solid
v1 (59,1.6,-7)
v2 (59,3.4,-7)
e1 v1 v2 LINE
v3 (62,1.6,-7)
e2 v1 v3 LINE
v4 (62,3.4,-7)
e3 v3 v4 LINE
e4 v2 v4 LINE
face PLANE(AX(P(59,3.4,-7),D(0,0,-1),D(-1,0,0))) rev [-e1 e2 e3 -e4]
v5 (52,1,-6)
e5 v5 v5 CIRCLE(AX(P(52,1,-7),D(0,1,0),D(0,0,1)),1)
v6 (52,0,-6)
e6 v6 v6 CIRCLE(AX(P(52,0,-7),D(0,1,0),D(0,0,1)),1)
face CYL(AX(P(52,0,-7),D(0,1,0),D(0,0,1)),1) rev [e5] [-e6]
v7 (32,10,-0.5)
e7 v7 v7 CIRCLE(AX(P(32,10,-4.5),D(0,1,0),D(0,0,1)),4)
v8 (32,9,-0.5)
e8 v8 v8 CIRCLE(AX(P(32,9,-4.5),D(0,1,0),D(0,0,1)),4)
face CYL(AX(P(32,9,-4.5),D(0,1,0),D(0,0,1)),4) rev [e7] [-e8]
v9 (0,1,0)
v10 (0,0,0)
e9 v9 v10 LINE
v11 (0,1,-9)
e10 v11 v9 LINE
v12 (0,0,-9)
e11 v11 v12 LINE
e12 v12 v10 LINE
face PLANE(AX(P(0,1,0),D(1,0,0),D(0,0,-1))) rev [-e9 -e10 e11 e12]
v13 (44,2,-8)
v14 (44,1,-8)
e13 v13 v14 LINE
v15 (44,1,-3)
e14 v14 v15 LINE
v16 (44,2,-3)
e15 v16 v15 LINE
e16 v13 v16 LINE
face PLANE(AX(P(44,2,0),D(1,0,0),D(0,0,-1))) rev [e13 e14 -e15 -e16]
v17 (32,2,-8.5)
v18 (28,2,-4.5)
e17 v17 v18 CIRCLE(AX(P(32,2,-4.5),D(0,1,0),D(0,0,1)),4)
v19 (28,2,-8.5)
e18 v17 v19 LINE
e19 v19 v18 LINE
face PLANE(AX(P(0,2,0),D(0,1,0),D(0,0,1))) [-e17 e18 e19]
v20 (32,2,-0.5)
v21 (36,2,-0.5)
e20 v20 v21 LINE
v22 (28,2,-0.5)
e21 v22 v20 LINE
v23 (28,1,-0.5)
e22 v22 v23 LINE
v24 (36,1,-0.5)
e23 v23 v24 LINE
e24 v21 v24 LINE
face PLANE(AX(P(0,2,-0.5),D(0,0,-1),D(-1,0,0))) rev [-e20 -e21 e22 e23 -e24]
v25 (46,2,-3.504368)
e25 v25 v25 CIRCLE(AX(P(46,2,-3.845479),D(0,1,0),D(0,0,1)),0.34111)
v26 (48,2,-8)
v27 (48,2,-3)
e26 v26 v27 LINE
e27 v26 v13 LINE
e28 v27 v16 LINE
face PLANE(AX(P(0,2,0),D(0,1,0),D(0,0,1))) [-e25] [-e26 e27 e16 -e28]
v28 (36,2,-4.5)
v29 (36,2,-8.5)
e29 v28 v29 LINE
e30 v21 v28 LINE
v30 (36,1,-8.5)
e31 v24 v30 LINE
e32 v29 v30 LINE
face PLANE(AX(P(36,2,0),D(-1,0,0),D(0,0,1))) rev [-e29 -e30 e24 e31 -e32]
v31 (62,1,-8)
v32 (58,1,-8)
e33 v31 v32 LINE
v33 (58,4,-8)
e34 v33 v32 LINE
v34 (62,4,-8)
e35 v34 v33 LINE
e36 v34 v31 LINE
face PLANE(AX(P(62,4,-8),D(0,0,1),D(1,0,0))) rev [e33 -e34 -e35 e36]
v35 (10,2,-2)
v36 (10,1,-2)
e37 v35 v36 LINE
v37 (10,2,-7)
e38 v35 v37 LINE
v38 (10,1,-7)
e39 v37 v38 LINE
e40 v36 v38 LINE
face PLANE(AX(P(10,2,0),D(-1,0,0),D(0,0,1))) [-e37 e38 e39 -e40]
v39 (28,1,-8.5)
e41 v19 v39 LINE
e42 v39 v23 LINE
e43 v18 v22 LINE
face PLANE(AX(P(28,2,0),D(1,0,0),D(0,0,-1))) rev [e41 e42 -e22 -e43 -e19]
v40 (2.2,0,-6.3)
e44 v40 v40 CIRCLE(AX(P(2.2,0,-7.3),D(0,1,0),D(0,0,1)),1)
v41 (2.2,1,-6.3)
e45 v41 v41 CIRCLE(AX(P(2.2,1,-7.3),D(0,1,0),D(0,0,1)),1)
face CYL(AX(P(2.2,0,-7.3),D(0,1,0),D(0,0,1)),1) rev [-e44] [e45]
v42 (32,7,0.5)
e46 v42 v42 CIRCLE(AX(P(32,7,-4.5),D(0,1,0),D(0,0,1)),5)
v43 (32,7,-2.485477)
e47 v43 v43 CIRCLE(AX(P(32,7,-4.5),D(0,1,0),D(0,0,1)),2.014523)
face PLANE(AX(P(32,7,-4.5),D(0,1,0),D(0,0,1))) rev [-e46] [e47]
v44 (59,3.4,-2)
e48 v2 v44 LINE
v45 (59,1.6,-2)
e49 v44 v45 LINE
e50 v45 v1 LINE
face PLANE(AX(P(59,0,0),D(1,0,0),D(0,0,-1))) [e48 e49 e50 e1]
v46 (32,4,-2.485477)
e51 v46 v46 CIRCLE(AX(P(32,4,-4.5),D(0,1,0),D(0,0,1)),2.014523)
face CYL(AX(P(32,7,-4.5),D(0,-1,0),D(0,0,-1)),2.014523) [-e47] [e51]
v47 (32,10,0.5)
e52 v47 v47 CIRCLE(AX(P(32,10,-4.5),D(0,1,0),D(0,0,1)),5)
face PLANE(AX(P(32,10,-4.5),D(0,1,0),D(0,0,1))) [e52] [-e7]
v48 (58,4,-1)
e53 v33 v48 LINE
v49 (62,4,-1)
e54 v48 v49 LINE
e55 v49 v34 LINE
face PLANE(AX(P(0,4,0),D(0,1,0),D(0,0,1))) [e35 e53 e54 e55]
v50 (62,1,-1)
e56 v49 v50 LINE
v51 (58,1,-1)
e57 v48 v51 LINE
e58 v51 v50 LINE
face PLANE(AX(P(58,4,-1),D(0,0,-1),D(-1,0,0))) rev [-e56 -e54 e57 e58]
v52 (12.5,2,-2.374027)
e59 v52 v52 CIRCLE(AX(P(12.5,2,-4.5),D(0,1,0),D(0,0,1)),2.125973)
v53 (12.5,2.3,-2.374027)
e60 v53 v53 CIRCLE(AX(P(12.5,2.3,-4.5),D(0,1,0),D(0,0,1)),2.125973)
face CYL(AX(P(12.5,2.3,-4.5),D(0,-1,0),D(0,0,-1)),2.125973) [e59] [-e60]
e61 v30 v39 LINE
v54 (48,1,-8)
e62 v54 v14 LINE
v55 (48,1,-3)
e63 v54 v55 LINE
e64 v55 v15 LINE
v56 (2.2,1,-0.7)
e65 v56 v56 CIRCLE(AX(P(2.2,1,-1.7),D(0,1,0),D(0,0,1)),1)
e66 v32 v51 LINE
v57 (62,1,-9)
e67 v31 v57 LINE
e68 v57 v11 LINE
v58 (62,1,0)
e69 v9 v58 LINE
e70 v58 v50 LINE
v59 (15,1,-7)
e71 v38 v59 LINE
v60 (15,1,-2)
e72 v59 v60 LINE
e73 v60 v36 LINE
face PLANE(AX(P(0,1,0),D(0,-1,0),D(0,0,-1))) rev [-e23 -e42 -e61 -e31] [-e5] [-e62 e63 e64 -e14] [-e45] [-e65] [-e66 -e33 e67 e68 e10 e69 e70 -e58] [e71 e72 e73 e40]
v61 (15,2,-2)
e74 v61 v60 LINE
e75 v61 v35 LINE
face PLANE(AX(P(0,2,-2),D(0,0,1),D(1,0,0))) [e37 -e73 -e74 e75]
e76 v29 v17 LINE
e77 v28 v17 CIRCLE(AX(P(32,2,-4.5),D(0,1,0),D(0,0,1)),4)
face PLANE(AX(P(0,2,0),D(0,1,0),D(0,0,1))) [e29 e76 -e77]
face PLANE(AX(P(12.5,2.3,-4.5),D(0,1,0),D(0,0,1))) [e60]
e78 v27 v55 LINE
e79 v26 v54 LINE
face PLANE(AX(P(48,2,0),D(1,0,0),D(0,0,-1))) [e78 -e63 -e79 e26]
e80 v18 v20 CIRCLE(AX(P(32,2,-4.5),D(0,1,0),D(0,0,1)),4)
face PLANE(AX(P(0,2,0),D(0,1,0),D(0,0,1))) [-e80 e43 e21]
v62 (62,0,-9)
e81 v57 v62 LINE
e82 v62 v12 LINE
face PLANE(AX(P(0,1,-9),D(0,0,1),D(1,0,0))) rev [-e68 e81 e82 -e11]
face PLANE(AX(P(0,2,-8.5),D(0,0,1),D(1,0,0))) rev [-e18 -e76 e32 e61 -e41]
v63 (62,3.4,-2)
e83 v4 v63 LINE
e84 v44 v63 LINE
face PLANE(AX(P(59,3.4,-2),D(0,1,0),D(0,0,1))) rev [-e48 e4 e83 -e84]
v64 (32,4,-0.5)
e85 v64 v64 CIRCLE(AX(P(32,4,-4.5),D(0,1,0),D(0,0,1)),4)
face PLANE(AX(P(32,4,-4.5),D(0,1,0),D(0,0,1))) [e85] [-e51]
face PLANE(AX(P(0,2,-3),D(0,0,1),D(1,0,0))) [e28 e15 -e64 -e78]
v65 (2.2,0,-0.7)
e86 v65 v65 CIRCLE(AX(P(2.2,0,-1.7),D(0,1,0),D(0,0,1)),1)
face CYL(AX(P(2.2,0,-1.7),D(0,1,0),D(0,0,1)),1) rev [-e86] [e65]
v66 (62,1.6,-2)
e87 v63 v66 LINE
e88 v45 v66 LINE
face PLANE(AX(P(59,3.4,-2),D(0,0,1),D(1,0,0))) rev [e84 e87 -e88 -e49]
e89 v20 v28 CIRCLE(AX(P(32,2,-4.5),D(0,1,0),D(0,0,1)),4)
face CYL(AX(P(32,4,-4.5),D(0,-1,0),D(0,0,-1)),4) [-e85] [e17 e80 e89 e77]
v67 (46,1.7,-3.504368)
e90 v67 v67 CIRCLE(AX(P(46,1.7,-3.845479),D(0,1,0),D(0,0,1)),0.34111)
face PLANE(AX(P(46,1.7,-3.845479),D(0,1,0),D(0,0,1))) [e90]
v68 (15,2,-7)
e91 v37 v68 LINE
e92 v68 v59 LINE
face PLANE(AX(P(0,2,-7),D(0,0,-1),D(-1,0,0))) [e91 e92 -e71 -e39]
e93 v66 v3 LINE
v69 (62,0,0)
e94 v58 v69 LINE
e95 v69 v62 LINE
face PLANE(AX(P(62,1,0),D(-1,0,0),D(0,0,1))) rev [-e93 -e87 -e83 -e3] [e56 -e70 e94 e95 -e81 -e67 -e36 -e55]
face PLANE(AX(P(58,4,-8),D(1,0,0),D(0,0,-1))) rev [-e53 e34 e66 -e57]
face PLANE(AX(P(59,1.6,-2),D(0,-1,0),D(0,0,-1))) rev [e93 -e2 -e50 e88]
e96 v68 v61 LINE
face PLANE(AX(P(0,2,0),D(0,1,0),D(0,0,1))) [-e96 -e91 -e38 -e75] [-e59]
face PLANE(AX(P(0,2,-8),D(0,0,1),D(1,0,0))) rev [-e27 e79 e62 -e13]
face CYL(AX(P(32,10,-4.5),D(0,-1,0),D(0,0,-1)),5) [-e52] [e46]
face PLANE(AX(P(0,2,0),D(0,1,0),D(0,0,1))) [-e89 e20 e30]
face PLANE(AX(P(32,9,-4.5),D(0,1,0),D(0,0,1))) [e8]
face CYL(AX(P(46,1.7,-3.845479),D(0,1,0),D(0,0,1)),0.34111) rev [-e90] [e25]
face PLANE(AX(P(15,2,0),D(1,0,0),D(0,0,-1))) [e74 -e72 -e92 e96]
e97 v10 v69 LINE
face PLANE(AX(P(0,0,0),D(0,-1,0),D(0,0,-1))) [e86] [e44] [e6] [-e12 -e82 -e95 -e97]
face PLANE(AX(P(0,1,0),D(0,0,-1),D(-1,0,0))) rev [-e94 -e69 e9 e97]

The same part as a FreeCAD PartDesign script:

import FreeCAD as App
import Part
import Sketcher
Q = App.Units.Quantity


def add_polygon(sketch, points):
    """Adds a closed chain of lines whose ends are joined by coincident constraints."""
    first, n = sketch.GeometryCount, len(points)
    for a, b in zip(points, points[1:] + points[:1]):
        sketch.addGeometry(Part.LineSegment(App.Vector(*a, 0), App.Vector(*b, 0)), False)
    for i in range(n):
        sketch.addConstraint(Sketcher.Constraint("Coincident", first + i, 2, first + (i + 1) % n, 1))

doc = App.newDocument("Part")
body = doc.addObject("PartDesign::Body", "Body")

sketch1 = body.newObject("Sketcher::SketchObject", "Sketch")
sketch1.AttachmentSupport = (doc.getObject("XZ_Plane"), [""])
sketch1.MapMode = "FlatFace"
add_polygon(sketch1, [(0, -9), (0, 0), (62, 0), (62, -9)])
sketch1.addConstraint([
    Sketcher.Constraint("Vertical", 0),
    Sketcher.Constraint("Horizontal", 1),
    Sketcher.Constraint("Vertical", 2),
    Sketcher.Constraint("Horizontal", 3),
    Sketcher.Constraint("Coincident", 0, 2, -1, 1),
    Sketcher.Constraint("DistanceX", 1, 1, 1, 2, Q("62 mm")),
    Sketcher.Constraint("DistanceY", 0, 1, 0, 2, Q("9 mm")),
])
pad1 = body.newObject("PartDesign::Pad", "Pad")
pad1.Profile = sketch1
pad1.Length = 1
pad1.Reversed = True

sketch2 = body.newObject("Sketcher::SketchObject", "Sketch001")
sketch2.AttachmentSupport = (doc.getObject("XZ_Plane"), [""])
sketch2.MapMode = "FlatFace"
sketch2.AttachmentOffset = App.Placement(App.Vector(0, 0, -1), App.Rotation())
add_polygon(sketch2, [(62, -8), (58, -8), (58, -1), (62, -1)])
sketch2.addConstraint([
    Sketcher.Constraint("Horizontal", 0),
    Sketcher.Constraint("Vertical", 1),
    Sketcher.Constraint("Horizontal", 2),
    Sketcher.Constraint("Vertical", 3),
    Sketcher.Constraint("DistanceX", 0, 2, 0, 1, Q("4 mm")),
    Sketcher.Constraint("DistanceY", 1, 1, 1, 2, Q("7 mm")),
    Sketcher.Constraint("DistanceX", -1, 1, 0, 2, Q("58 mm")),
    Sketcher.Constraint("DistanceY", 0, 2, -1, 1, Q("8 mm")),
])
pad2 = body.newObject("PartDesign::Pad", "Pad001")
pad2.Profile = sketch2
pad2.Length = 3
pad2.Reversed = True

sketch3 = body.newObject("Sketcher::SketchObject", "Sketch002")
sketch3.AttachmentSupport = (doc.getObject("YZ_Plane"), [""])
sketch3.MapMode = "FlatFace"
sketch3.AttachmentOffset = App.Placement(App.Vector(0, 0, 62), App.Rotation())
add_polygon(sketch3, [(3.4, -2), (1.6, -2), (1.6, -7), (3.4, -7)])
sketch3.addConstraint([
    Sketcher.Constraint("Horizontal", 0),
    Sketcher.Constraint("Vertical", 1),
    Sketcher.Constraint("Horizontal", 2),
    Sketcher.Constraint("Vertical", 3),
    Sketcher.Constraint("DistanceY", 1, 2, 1, 1, Q("5 mm")),
    Sketcher.Constraint("DistanceX", 0, 2, 0, 1, Q("1.8 mm")),
    Sketcher.Constraint("DistanceY", 0, 2, -1, 1, Q("2 mm")),
    Sketcher.Constraint("DistanceX", -1, 1, 0, 2, Q("1.6 mm")),
])
pocket1 = body.newObject("PartDesign::Pocket", "Pocket")
pocket1.Profile = sketch3
pocket1.Length = 3

sketch4 = body.newObject("Sketcher::SketchObject", "Sketch003")
sketch4.AttachmentSupport = (doc.getObject("XZ_Plane"), [""])
sketch4.MapMode = "FlatFace"
sketch4.AttachmentOffset = App.Placement(App.Vector(0, 0, -1), App.Rotation())
sketch4.addGeometry([
    Part.Circle(App.Vector(2.2, -7.3, 0), App.Vector(0, 0, 1), 1),
    Part.Circle(App.Vector(2.2, -1.7, 0), App.Vector(0, 0, 1), 1),
    Part.Circle(App.Vector(52, -7, 0), App.Vector(0, 0, 1), 1),
], False)
sketch4.addConstraint([
    Sketcher.Constraint("Equal", 0, 1),
    Sketcher.Constraint("Equal", 1, 2),
    Sketcher.Constraint("Vertical", 0, 3, 1, 3),
    Sketcher.Constraint("Diameter", 0, Q("2 mm")),
    Sketcher.Constraint("DistanceX", -1, 1, 2, 3, Q("52 mm")),
    Sketcher.Constraint("DistanceY", 2, 3, -1, 1, Q("7 mm")),
    Sketcher.Constraint("DistanceX", -1, 1, 0, 3, Q("2.2 mm")),
    Sketcher.Constraint("DistanceY", 0, 3, -1, 1, Q("7.3 mm")),
    Sketcher.Constraint("DistanceY", 1, 3, -1, 1, Q("1.7 mm")),
])
pocket2 = body.newObject("PartDesign::Pocket", "Pocket001")
pocket2.Profile = sketch4
pocket2.Type = "ThroughAll"
pocket2.Reversed = True

sketch5 = body.newObject("Sketcher::SketchObject", "Sketch004")
sketch5.AttachmentSupport = (doc.getObject("XZ_Plane"), [""])
sketch5.MapMode = "FlatFace"
sketch5.AttachmentOffset = App.Placement(App.Vector(0, 0, -1), App.Rotation())
add_polygon(sketch5, [(44, -8), (44, -3), (48, -3), (48, -8)])
sketch5.addConstraint([
    Sketcher.Constraint("Vertical", 0),
    Sketcher.Constraint("Horizontal", 1),
    Sketcher.Constraint("Vertical", 2),
    Sketcher.Constraint("Horizontal", 3),
    Sketcher.Constraint("DistanceX", 1, 1, 1, 2, Q("4 mm")),
    Sketcher.Constraint("DistanceY", 0, 1, 0, 2, Q("5 mm")),
    Sketcher.Constraint("DistanceX", -1, 1, 0, 2, Q("44 mm")),
    Sketcher.Constraint("DistanceY", 0, 2, -1, 1, Q("3 mm")),
])
pad3 = body.newObject("PartDesign::Pad", "Pad002")
pad3.Profile = sketch5
pad3.Length = 1
pad3.Reversed = True

sketch6 = body.newObject("Sketcher::SketchObject", "Sketch005")
sketch6.AttachmentSupport = (doc.getObject("XZ_Plane"), [""])
sketch6.MapMode = "FlatFace"
sketch6.AttachmentOffset = App.Placement(App.Vector(0, 0, -1), App.Rotation())
add_polygon(sketch6, [(10, -7), (10, -2), (15, -2), (15, -7)])
sketch6.addConstraint([
    Sketcher.Constraint("Vertical", 0),
    Sketcher.Constraint("Horizontal", 1),
    Sketcher.Constraint("Vertical", 2),
    Sketcher.Constraint("Horizontal", 3),
    Sketcher.Constraint("Equal", 3, 0),
    Sketcher.Constraint("DistanceX", 1, 1, 1, 2, Q("5 mm")),
    Sketcher.Constraint("DistanceX", -1, 1, 0, 2, Q("10 mm")),
    Sketcher.Constraint("DistanceY", 0, 2, -1, 1, Q("2 mm")),
])
pad4 = body.newObject("PartDesign::Pad", "Pad003")
pad4.Profile = sketch6
pad4.Length = 1
pad4.Reversed = True

sketch7 = body.newObject("Sketcher::SketchObject", "Sketch006")
sketch7.AttachmentSupport = (doc.getObject("XZ_Plane"), [""])
sketch7.MapMode = "FlatFace"
sketch7.AttachmentOffset = App.Placement(App.Vector(0, 0, -2), App.Rotation())
sketch7.addGeometry(Part.Circle(App.Vector(12.5, -4.5, 0), App.Vector(0, 0, 1), 2.1), False)
sketch7.addConstraint([
    Sketcher.Constraint("DistanceX", -1, 1, 0, 3, Q("12.5 mm")),
    Sketcher.Constraint("DistanceY", 0, 3, -1, 1, Q("4.5 mm")),
    Sketcher.Constraint("Diameter", 0, Q("4.251947 mm")),
])
pad5 = body.newObject("PartDesign::Pad", "Pad004")
pad5.Profile = sketch7
pad5.Length = 0.3
pad5.Reversed = True

sketch8 = body.newObject("Sketcher::SketchObject", "Sketch007")
sketch8.AttachmentSupport = (doc.getObject("XZ_Plane"), [""])
sketch8.MapMode = "FlatFace"
sketch8.AttachmentOffset = App.Placement(App.Vector(0, 0, -1), App.Rotation())
add_polygon(sketch8, [(36, -8), (28, -8), (28, 0), (36, 0)])
sketch8.addConstraint([
    Sketcher.Constraint("Horizontal", 0),
    Sketcher.Constraint("Vertical", 1),
    Sketcher.Constraint("Horizontal", 2),
    Sketcher.Constraint("Vertical", 3),
    Sketcher.Constraint("Equal", 2, 1),
    Sketcher.Constraint("DistanceX", 0, 2, 0, 1, Q("8 mm")),
    Sketcher.Constraint("DistanceX", -1, 1, 0, 2, Q("28 mm")),
    Sketcher.Constraint("DistanceY", 0, 2, -1, 1, Q("8.5 mm")),
])
pad6 = body.newObject("PartDesign::Pad", "Pad005")
pad6.Profile = sketch8
pad6.Length = 1
pad6.Reversed = True

sketch9 = body.newObject("Sketcher::SketchObject", "Sketch008")
sketch9.AttachmentSupport = (doc.getObject("XZ_Plane"), [""])
sketch9.MapMode = "FlatFace"
sketch9.AttachmentOffset = App.Placement(App.Vector(0, 0, -2), App.Rotation())
sketch9.addGeometry(Part.Circle(App.Vector(32, -4.5, 0), App.Vector(0, 0, 1), 4), False)
sketch9.addConstraint([
    Sketcher.Constraint("Diameter", 0, Q("8 mm")),
    Sketcher.Constraint("DistanceX", -1, 1, 0, 3, Q("32 mm")),
    Sketcher.Constraint("DistanceY", 0, 3, -1, 1, Q("4.5 mm")),
])
pad7 = body.newObject("PartDesign::Pad", "Pad006")
pad7.Profile = sketch9
pad7.Length = 2
pad7.Reversed = True

sketch10 = body.newObject("Sketcher::SketchObject", "Sketch009")
sketch10.AttachmentSupport = (doc.getObject("XZ_Plane"), [""])
sketch10.MapMode = "FlatFace"
sketch10.AttachmentOffset = App.Placement(App.Vector(0, 0, -4), App.Rotation())
sketch10.addGeometry(Part.Circle(App.Vector(32, -4.5, 0), App.Vector(0, 0, 1), 2), False)
sketch10.addConstraint([
    Sketcher.Constraint("DistanceX", -1, 1, 0, 3, Q("32 mm")),
    Sketcher.Constraint("DistanceY", 0, 3, -1, 1, Q("4.5 mm")),
    Sketcher.Constraint("Diameter", 0, Q("4.029046 mm")),
])
pad8 = body.newObject("PartDesign::Pad", "Pad007")
pad8.Profile = sketch10
pad8.Length = 3
pad8.Reversed = True

sketch11 = body.newObject("Sketcher::SketchObject", "Sketch010")
sketch11.AttachmentSupport = (doc.getObject("XZ_Plane"), [""])
sketch11.MapMode = "FlatFace"
sketch11.AttachmentOffset = App.Placement(App.Vector(0, 0, -7), App.Rotation())
sketch11.addGeometry(Part.Circle(App.Vector(32, -4, 0), App.Vector(0, 0, 1), 5), False)
sketch11.addConstraint([
    Sketcher.Constraint("Diameter", 0, Q("10 mm")),
    Sketcher.Constraint("DistanceX", -1, 1, 0, 3, Q("32 mm")),
    Sketcher.Constraint("DistanceY", 0, 3, -1, 1, Q("4.5 mm")),
])
pad9 = body.newObject("PartDesign::Pad", "Pad008")
pad9.Profile = sketch11
pad9.Length = 3
pad9.Reversed = True

sketch12 = body.newObject("Sketcher::SketchObject", "Sketch011")
sketch12.AttachmentSupport = (doc.getObject("XZ_Plane"), [""])
sketch12.MapMode = "FlatFace"
sketch12.AttachmentOffset = App.Placement(App.Vector(0, 0, -9), App.Rotation())
sketch12.addGeometry(Part.Circle(App.Vector(32, -4.5, 0), App.Vector(0, 0, 1), 4), False)
sketch12.addConstraint([
    Sketcher.Constraint("Diameter", 0, Q("8 mm")),
    Sketcher.Constraint("DistanceX", -1, 1, 0, 3, Q("32 mm")),
    Sketcher.Constraint("DistanceY", 0, 3, -1, 1, Q("4.5 mm")),
])
pocket3 = body.newObject("PartDesign::Pocket", "Pocket002")
pocket3.Profile = sketch12
pocket3.Length = 1

sketch13 = body.newObject("Sketcher::SketchObject", "Sketch012")
sketch13.AttachmentSupport = (doc.getObject("XZ_Plane"), [""])
sketch13.MapMode = "FlatFace"
sketch13.AttachmentOffset = App.Placement(App.Vector(0, 0, -2), App.Rotation())
sketch13.addGeometry(Part.Circle(App.Vector(46, -3.85, 0), App.Vector(0, 0, 1), 0.34), False)
sketch13.addConstraint([
    Sketcher.Constraint("DistanceX", -1, 1, 0, 3, Q("46 mm")),
    Sketcher.Constraint("Diameter", 0, Q("0.682221 mm")),
    Sketcher.Constraint("DistanceY", 0, 3, -1, 1, Q("3.845479 mm")),
])
pocket4 = body.newObject("PartDesign::Pocket", "Pocket003")
pocket4.Profile = sketch13
pocket4.Length = 0.3
pocket4.Reversed = True

doc.recompute()
